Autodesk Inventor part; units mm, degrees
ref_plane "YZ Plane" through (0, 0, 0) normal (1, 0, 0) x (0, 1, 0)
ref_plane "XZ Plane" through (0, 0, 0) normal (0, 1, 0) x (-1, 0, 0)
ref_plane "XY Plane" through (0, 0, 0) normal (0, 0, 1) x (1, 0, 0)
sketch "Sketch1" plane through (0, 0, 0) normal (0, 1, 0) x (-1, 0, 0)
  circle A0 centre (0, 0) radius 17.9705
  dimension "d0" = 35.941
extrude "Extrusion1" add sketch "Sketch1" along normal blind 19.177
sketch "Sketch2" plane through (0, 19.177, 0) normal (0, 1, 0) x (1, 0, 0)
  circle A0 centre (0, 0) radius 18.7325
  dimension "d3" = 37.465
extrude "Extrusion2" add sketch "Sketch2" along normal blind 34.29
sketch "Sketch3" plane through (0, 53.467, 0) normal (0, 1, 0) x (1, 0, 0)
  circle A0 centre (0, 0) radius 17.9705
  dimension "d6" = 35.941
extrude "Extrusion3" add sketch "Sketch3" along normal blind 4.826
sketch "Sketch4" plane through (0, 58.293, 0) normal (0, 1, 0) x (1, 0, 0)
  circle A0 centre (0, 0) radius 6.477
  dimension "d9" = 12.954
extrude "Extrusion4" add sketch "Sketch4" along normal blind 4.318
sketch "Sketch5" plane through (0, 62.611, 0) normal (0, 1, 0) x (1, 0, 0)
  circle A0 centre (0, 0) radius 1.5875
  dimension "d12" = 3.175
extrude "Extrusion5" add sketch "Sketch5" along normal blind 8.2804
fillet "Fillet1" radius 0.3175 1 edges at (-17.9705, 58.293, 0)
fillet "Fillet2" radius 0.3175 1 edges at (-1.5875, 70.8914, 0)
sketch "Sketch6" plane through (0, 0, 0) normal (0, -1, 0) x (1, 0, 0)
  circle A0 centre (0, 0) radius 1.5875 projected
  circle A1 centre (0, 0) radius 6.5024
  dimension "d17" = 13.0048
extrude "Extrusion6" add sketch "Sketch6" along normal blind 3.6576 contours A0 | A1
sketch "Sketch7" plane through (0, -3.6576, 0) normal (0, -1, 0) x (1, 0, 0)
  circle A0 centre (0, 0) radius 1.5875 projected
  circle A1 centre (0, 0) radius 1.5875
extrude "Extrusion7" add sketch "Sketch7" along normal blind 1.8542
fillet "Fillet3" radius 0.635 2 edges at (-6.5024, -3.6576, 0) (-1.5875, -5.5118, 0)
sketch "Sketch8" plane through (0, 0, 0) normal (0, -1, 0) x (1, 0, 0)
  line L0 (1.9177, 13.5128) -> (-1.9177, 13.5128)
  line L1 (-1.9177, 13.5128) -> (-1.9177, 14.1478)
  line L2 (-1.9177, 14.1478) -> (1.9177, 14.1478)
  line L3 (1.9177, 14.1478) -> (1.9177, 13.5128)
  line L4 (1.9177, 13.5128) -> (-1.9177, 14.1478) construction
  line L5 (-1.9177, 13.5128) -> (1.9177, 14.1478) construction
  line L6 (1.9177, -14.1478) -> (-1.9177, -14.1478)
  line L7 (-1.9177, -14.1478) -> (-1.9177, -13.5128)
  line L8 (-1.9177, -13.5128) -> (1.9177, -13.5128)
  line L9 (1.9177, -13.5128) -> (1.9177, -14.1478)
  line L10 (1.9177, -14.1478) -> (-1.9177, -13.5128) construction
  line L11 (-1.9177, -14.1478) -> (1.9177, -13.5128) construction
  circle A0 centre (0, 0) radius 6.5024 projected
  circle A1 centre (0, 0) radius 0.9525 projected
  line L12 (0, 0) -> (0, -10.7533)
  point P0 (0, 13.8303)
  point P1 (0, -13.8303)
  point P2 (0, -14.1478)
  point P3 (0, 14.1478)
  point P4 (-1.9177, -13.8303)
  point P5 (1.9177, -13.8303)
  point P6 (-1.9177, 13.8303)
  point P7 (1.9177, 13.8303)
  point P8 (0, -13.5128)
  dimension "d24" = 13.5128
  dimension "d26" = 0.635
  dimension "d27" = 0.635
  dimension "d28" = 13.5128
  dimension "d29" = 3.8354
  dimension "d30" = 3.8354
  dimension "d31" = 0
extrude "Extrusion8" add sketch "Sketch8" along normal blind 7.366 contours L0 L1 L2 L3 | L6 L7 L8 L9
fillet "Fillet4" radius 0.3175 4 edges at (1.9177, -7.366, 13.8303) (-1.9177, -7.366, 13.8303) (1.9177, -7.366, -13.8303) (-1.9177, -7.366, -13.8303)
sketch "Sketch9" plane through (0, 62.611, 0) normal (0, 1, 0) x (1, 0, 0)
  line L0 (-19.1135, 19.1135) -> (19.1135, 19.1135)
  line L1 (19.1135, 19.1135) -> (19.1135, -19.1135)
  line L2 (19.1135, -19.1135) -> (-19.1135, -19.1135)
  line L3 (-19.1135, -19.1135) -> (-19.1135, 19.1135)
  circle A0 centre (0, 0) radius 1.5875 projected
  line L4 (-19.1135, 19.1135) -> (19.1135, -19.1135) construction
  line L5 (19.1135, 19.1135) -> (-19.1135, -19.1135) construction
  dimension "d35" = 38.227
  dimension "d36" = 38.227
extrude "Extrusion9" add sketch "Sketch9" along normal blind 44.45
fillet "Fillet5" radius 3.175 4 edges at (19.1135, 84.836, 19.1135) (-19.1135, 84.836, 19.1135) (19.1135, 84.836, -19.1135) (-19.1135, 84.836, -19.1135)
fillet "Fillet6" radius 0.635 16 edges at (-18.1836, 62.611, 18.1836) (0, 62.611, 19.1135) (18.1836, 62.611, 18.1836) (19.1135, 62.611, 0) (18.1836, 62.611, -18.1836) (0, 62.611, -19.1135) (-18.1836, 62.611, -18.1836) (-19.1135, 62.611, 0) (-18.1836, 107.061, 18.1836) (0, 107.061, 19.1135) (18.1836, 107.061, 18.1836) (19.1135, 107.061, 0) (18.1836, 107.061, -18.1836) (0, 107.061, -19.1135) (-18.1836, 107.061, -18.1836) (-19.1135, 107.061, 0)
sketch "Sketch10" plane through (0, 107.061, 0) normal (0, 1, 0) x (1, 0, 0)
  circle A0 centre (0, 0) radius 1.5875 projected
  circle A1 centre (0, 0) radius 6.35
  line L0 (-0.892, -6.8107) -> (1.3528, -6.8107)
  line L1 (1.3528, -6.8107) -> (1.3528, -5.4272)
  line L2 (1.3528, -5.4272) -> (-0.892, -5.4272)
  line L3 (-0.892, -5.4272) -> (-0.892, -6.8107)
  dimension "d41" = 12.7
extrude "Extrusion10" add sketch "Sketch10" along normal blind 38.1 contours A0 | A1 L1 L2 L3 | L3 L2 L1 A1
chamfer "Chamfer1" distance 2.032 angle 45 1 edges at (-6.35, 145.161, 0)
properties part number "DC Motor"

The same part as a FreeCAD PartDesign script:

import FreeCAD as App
import Part
import Sketcher
from FreeCAD import Vector
Q = App.Units.Quantity


def edges_at(feature, points):
    """Names of the edges that pass closest to the given points."""
    edges = feature.Shape.Edges
    near = lambda p: min(range(len(edges)), key=lambda i: edges[i].distToShape(Part.Vertex(*p))[0])
    return sorted({f"Edge{near(p) + 1}" for p in points})

doc = App.newDocument("Part")
params = doc.addObject("Spreadsheet::Sheet", "Params")
for row, (alias, value) in enumerate([
    ("sketch1_diameter", "1.415 in"),
    ("pad1_length", "0.755 in"),
    ("sketch2_diameter", "1.475 in"),
    ("pad2_length", "1.35 in"),
    ("sketch3_diameter", "1.415 in"),
    ("pad3_length", "0.19 in"),
    ("sketch4_diameter", "0.51 in"),
    ("pad4_length", "0.17 in"),
    ("sketch5_diameter", "0.125 in"),
    ("pad5_length", "0.326 in"),
    ("fillet_radius", "0.0125 in"),
    ("fillet2_radius", "0.0125 in"),
    ("sketch6_diameter", "0.512 in"),
    ("pad6_length", "0.144 in"),
    ("sketch7_diameter", "0.125 in"),
    ("pad7_length", "0.073 in"),
    ("fillet3_radius", "0.025 in"),
    ("sketch8_width", "0.151 in"),
    ("sketch8_height", "0.025 in"),
    ("pad8_length", "0.29 in"),
    ("fillet4_radius", "0.0125 in"),
    ("sketch9_width", "1.505 in"),
    ("sketch9_diameter", "0.125 in"),
    ("pad9_length", "1.75 in"),
    ("fillet5_radius", "0.125 in"),
    ("fillet6_radius", "0.025 in"),
    ("sketch10_diameter", "0.5 in"),
    ("pad10_length", "1.5 in"),
    ("chamfer_size", "0.08 in"),
], start=1):
    params.set(f"A{row}", alias)
    params.set(f"B{row}", "=" + value)
    params.setAlias(f"B{row}", alias)

body = doc.addObject("PartDesign::Body", "Body")

# Sketch on XZ plane
sketch1 = doc.addObject("Sketcher::SketchObject", "Sketch")
body.addObject(sketch1)
sketch1.AttachmentSupport = (doc.XZ_Plane, [""])
sketch1.MapMode = "FlatFace"
sketch1.addGeometry(Part.Circle(Vector(0, 0, 0), Vector(0, 0, 1), 17.9705), False)
sketch1.addConstraint(Sketcher.Constraint("Coincident", 0, 3, -1, 1))
sketch1.addConstraint(Sketcher.Constraint("Diameter", 0, Q("1.415 in")))
sketch1.setExpression("Constraints[1]", "Params.sketch1_diameter")
pad1 = doc.addObject("PartDesign::Pad", "Pad")
body.addObject(pad1)
pad1.Profile = sketch1
pad1.setExpression("Length", "Params.pad1_length")
pad1.Reversed = True

# Sketch on XZ plane
sketch2 = doc.addObject("Sketcher::SketchObject", "Sketch001")
body.addObject(sketch2)
sketch2.AttachmentSupport = (doc.XZ_Plane, [""])
sketch2.MapMode = "FlatFace"
sketch2.AttachmentOffset = App.Placement(Vector(0, 0, -0.755 * 25.4), App.Rotation())
sketch2.addGeometry(Part.Circle(Vector(0, 0, 0), Vector(0, 0, 1), 18.7325), False)
sketch2.addConstraint(Sketcher.Constraint("Coincident", 0, 3, -1, 1))
sketch2.addConstraint(Sketcher.Constraint("Diameter", 0, Q("1.475 in")))
sketch2.setExpression("Constraints[1]", "Params.sketch2_diameter")
pad2 = doc.addObject("PartDesign::Pad", "Pad001")
body.addObject(pad2)
pad2.Profile = sketch2
pad2.setExpression("Length", "Params.pad2_length")
pad2.Reversed = True

# Sketch on XZ plane
sketch3 = doc.addObject("Sketcher::SketchObject", "Sketch002")
body.addObject(sketch3)
sketch3.AttachmentSupport = (doc.XZ_Plane, [""])
sketch3.MapMode = "FlatFace"
sketch3.AttachmentOffset = App.Placement(Vector(0, 0, -2.105 * 25.4), App.Rotation())
sketch3.addGeometry(Part.Circle(Vector(0, 0, 0), Vector(0, 0, 1), 17.9705), False)
sketch3.addConstraint(Sketcher.Constraint("Coincident", 0, 3, -1, 1))
sketch3.addConstraint(Sketcher.Constraint("Diameter", 0, Q("1.415 in")))
sketch3.setExpression("Constraints[1]", "Params.sketch3_diameter")
pad3 = doc.addObject("PartDesign::Pad", "Pad002")
body.addObject(pad3)
pad3.Profile = sketch3
pad3.setExpression("Length", "Params.pad3_length")
pad3.Reversed = True

# Sketch on XZ plane
sketch4 = doc.addObject("Sketcher::SketchObject", "Sketch003")
body.addObject(sketch4)
sketch4.AttachmentSupport = (doc.XZ_Plane, [""])
sketch4.MapMode = "FlatFace"
sketch4.AttachmentOffset = App.Placement(Vector(0, 0, -2.295 * 25.4), App.Rotation())
sketch4.addGeometry(Part.Circle(Vector(0, 0, 0), Vector(0, 0, 1), 6.477), False)
sketch4.addConstraint(Sketcher.Constraint("Coincident", 0, 3, -1, 1))
sketch4.addConstraint(Sketcher.Constraint("Diameter", 0, Q("0.51 in")))
sketch4.setExpression("Constraints[1]", "Params.sketch4_diameter")
pad4 = doc.addObject("PartDesign::Pad", "Pad003")
body.addObject(pad4)
pad4.Profile = sketch4
pad4.setExpression("Length", "Params.pad4_length")
pad4.Reversed = True

# Sketch on XZ plane
sketch5 = doc.addObject("Sketcher::SketchObject", "Sketch004")
body.addObject(sketch5)
sketch5.AttachmentSupport = (doc.XZ_Plane, [""])
sketch5.MapMode = "FlatFace"
sketch5.AttachmentOffset = App.Placement(Vector(0, 0, -2.465 * 25.4), App.Rotation())
sketch5.addGeometry(Part.Circle(Vector(0, 0, 0), Vector(0, 0, 1), 1.5875), False)
sketch5.addConstraint(Sketcher.Constraint("Coincident", 0, 3, -1, 1))
sketch5.addConstraint(Sketcher.Constraint("Diameter", 0, Q("0.125 in")))
sketch5.setExpression("Constraints[1]", "Params.sketch5_diameter")
pad5 = doc.addObject("PartDesign::Pad", "Pad004")
body.addObject(pad5)
pad5.Profile = sketch5
pad5.setExpression("Length", "Params.pad5_length")
pad5.Reversed = True
doc.recompute()

fillet = doc.addObject("PartDesign::Fillet", "Fillet")
body.addObject(fillet)
fillet.Base = (pad5, edges_at(pad5, [(-17.971, 58.293, 0)]))
fillet.setExpression("Radius", "Params.fillet_radius")
doc.recompute()

fillet2 = doc.addObject("PartDesign::Fillet", "Fillet001")
body.addObject(fillet2)
fillet2.Base = (fillet, edges_at(fillet, [(-1.587, 70.891, 0)]))
fillet2.setExpression("Radius", "Params.fillet2_radius")

# Sketch on XZ plane
sketch6 = doc.addObject("Sketcher::SketchObject", "Sketch005")
body.addObject(sketch6)
sketch6.AttachmentSupport = (doc.XZ_Plane, [""])
sketch6.MapMode = "FlatFace"
sketch6.addGeometry(Part.Circle(Vector(0, 0, 0), Vector(0, 0, 1), 6.5024), False)
sketch6.addConstraint(Sketcher.Constraint("Coincident", 0, 3, -1, 1))
sketch6.addConstraint(Sketcher.Constraint("Diameter", 0, Q("0.512 in")))
sketch6.setExpression("Constraints[1]", "Params.sketch6_diameter")
pad6 = doc.addObject("PartDesign::Pad", "Pad005")
body.addObject(pad6)
pad6.Profile = sketch6
pad6.setExpression("Length", "Params.pad6_length")

# Sketch on XZ plane
sketch7 = doc.addObject("Sketcher::SketchObject", "Sketch006")
body.addObject(sketch7)
sketch7.AttachmentSupport = (doc.XZ_Plane, [""])
sketch7.MapMode = "FlatFace"
sketch7.AttachmentOffset = App.Placement(Vector(0, 0, 0.144 * 25.4), App.Rotation())
sketch7.addGeometry(Part.Circle(Vector(0, 0, 0), Vector(0, 0, 1), 1.5875), False)
sketch7.addConstraint(Sketcher.Constraint("Coincident", 0, 3, -1, 1))
sketch7.addConstraint(Sketcher.Constraint("Diameter", 0, Q("0.125 in")))
sketch7.setExpression("Constraints[1]", "Params.sketch7_diameter")
pad7 = doc.addObject("PartDesign::Pad", "Pad006")
body.addObject(pad7)
pad7.Profile = sketch7
pad7.setExpression("Length", "Params.pad7_length")
doc.recompute()

fillet3 = doc.addObject("PartDesign::Fillet", "Fillet002")
body.addObject(fillet3)
fillet3.Base = (pad7, edges_at(pad7, [(-6.502, -3.658, 0), (-1.587, -5.512, 0)]))
fillet3.setExpression("Radius", "Params.fillet3_radius")

# Sketch on XZ plane
sketch8 = doc.addObject("Sketcher::SketchObject", "Sketch007")
body.addObject(sketch8)
sketch8.AttachmentSupport = (doc.XZ_Plane, [""])
sketch8.MapMode = "FlatFace"
sketch8.addGeometry(Part.LineSegment(Vector(-1.9177, 13.5128, 0), Vector(1.9177, 13.5128, 0)), False)
sketch8.addGeometry(Part.LineSegment(Vector(1.9177, 13.5128, 0), Vector(1.9177, 14.1478, 0)), False)
sketch8.addGeometry(Part.LineSegment(Vector(1.9177, 14.1478, 0), Vector(-1.9177, 14.1478, 0)), False)
sketch8.addGeometry(Part.LineSegment(Vector(-1.9177, 14.1478, 0), Vector(-1.9177, 13.5128, 0)), False)
sketch8.addGeometry(Part.LineSegment(Vector(-1.9177, -14.1478, 0), Vector(1.9177, -14.1478, 0)), False)
sketch8.addGeometry(Part.LineSegment(Vector(1.9177, -14.1478, 0), Vector(1.9177, -13.5128, 0)), False)
sketch8.addGeometry(Part.LineSegment(Vector(1.9177, -13.5128, 0), Vector(-1.9177, -13.5128, 0)), False)
sketch8.addGeometry(Part.LineSegment(Vector(-1.9177, -13.5128, 0), Vector(-1.9177, -14.1478, 0)), False)
sketch8.addConstraint(Sketcher.Constraint("Coincident", 0, 2, 1, 1))
sketch8.addConstraint(Sketcher.Constraint("Coincident", 1, 2, 2, 1))
sketch8.addConstraint(Sketcher.Constraint("Coincident", 2, 2, 3, 1))
sketch8.addConstraint(Sketcher.Constraint("Coincident", 3, 2, 0, 1))
sketch8.addConstraint(Sketcher.Constraint("Coincident", 4, 2, 5, 1))
sketch8.addConstraint(Sketcher.Constraint("Coincident", 5, 2, 6, 1))
sketch8.addConstraint(Sketcher.Constraint("Coincident", 6, 2, 7, 1))
sketch8.addConstraint(Sketcher.Constraint("Coincident", 7, 2, 4, 1))
sketch8.addConstraint(Sketcher.Constraint("Horizontal", 0))
sketch8.addConstraint(Sketcher.Constraint("Vertical", 1))
sketch8.addConstraint(Sketcher.Constraint("Horizontal", 2))
sketch8.addConstraint(Sketcher.Constraint("Vertical", 3))
sketch8.addConstraint(Sketcher.Constraint("Horizontal", 4))
sketch8.addConstraint(Sketcher.Constraint("Vertical", 5))
sketch8.addConstraint(Sketcher.Constraint("Horizontal", 6))
sketch8.addConstraint(Sketcher.Constraint("Vertical", 7))
sketch8.addConstraint(Sketcher.Constraint("Symmetric", 2, 2, 4, 2, -1, 1))
sketch8.addConstraint(Sketcher.Constraint("Symmetric", 0, 2, 6, 2, -1, 1))
sketch8.addConstraint(Sketcher.Constraint("Vertical", 1, 2, 4, 2))
sketch8.addConstraint(Sketcher.Constraint("DistanceX", 0, 1, 0, 2, Q("0.151 in")))
sketch8.addConstraint(Sketcher.Constraint("DistanceY", 1, 1, 1, 2, Q("0.025 in")))
sketch8.addConstraint(Sketcher.Constraint("DistanceY", -1, 1, 0, 2, Q("0.532 in")))
sketch8.setExpression("Constraints[19]", "Params.sketch8_width")
sketch8.setExpression("Constraints[20]", "Params.sketch8_height")
pad8 = doc.addObject("PartDesign::Pad", "Pad007")
body.addObject(pad8)
pad8.Profile = sketch8
pad8.setExpression("Length", "Params.pad8_length")
doc.recompute()

fillet4 = doc.addObject("PartDesign::Fillet", "Fillet003")
body.addObject(fillet4)
fillet4.Base = (pad8, edges_at(pad8, [
    (1.918, -7.366, 13.83),
    (-1.918, -7.366, 13.83),
    (1.918, -7.366, -13.83),
    (-1.918, -7.366, -13.83),
]))
fillet4.setExpression("Radius", "Params.fillet4_radius")

# Sketch on XZ plane
sketch9 = doc.addObject("Sketcher::SketchObject", "Sketch008")
body.addObject(sketch9)
sketch9.AttachmentSupport = (doc.XZ_Plane, [""])
sketch9.MapMode = "FlatFace"
sketch9.AttachmentOffset = App.Placement(Vector(0, 0, -2.465 * 25.4), App.Rotation())
sketch9.addGeometry(Part.LineSegment(Vector(19.1135, -19.1135, 0), Vector(-19.1135, -19.1135, 0)), False)
sketch9.addGeometry(Part.LineSegment(Vector(-19.1135, -19.1135, 0), Vector(-19.1135, 19.1135, 0)), False)
sketch9.addGeometry(Part.LineSegment(Vector(-19.1135, 19.1135, 0), Vector(19.1135, 19.1135, 0)), False)
sketch9.addGeometry(Part.LineSegment(Vector(19.1135, 19.1135, 0), Vector(19.1135, -19.1135, 0)), False)
sketch9.addGeometry(Part.Circle(Vector(0, 0, 0), Vector(0, 0, 1), 1.5875), False)
sketch9.addConstraint(Sketcher.Constraint("Coincident", 0, 2, 1, 1))
sketch9.addConstraint(Sketcher.Constraint("Coincident", 1, 2, 2, 1))
sketch9.addConstraint(Sketcher.Constraint("Coincident", 2, 2, 3, 1))
sketch9.addConstraint(Sketcher.Constraint("Coincident", 3, 2, 0, 1))
sketch9.addConstraint(Sketcher.Constraint("Horizontal", 0))
sketch9.addConstraint(Sketcher.Constraint("Vertical", 1))
sketch9.addConstraint(Sketcher.Constraint("Horizontal", 2))
sketch9.addConstraint(Sketcher.Constraint("Vertical", 3))
sketch9.addConstraint(Sketcher.Constraint("Coincident", 4, 3, -1, 1))
sketch9.addConstraint(Sketcher.Constraint("Symmetric", 0, 2, 2, 2, -1, 1))
sketch9.addConstraint(Sketcher.Constraint("Equal", 2, 1))
sketch9.addConstraint(Sketcher.Constraint("DistanceX", 0, 2, 0, 1, Q("1.505 in")))
sketch9.addConstraint(Sketcher.Constraint("Diameter", 4, Q("0.125 in")))
sketch9.setExpression("Constraints[11]", "Params.sketch9_width")
sketch9.setExpression("Constraints[12]", "Params.sketch9_diameter")
pad9 = doc.addObject("PartDesign::Pad", "Pad008")
body.addObject(pad9)
pad9.Profile = sketch9
pad9.setExpression("Length", "Params.pad9_length")
pad9.Reversed = True
doc.recompute()

fillet5 = doc.addObject("PartDesign::Fillet", "Fillet004")
body.addObject(fillet5)
fillet5.Base = (pad9, edges_at(pad9, [
    (19.113, 84.836, 19.113),
    (-19.113, 84.836, 19.113),
    (19.113, 84.836, -19.113),
    (-19.113, 84.836, -19.113),
]))
fillet5.setExpression("Radius", "Params.fillet5_radius")
doc.recompute()

fillet6 = doc.addObject("PartDesign::Fillet", "Fillet005")
body.addObject(fillet6)
fillet6.Base = (fillet5, edges_at(fillet5, [
    (-18.184, 62.611, 18.184),
    (0, 62.611, 19.113),
    (18.184, 62.611, 18.184),
    (19.113, 62.611, 0),
    (18.184, 62.611, -18.184),
    (0, 62.611, -19.113),
    (-18.184, 62.611, -18.184),
    (-19.113, 62.611, 0),
    (-18.184, 107.061, 18.184),
    (0, 107.061, 19.113),
    (18.184, 107.061, 18.184),
    (19.113, 107.061, 0),
    (18.184, 107.061, -18.184),
    (0, 107.061, -19.113),
    (-18.184, 107.061, -18.184),
    (-19.113, 107.061, 0),
]))
fillet6.setExpression("Radius", "Params.fillet6_radius")

# Sketch on XZ plane
sketch10 = doc.addObject("Sketcher::SketchObject", "Sketch009")
body.addObject(sketch10)
sketch10.AttachmentSupport = (doc.XZ_Plane, [""])
sketch10.MapMode = "FlatFace"
sketch10.AttachmentOffset = App.Placement(Vector(0, 0, -4.215 * 25.4), App.Rotation())
sketch10.addGeometry(Part.Circle(Vector(0, 0, 0), Vector(0, 0, 1), 6.35), False)
sketch10.addConstraint(Sketcher.Constraint("Coincident", 0, 3, -1, 1))
sketch10.addConstraint(Sketcher.Constraint("Diameter", 0, Q("0.5 in")))
sketch10.setExpression("Constraints[1]", "Params.sketch10_diameter")
pad10 = doc.addObject("PartDesign::Pad", "Pad009")
body.addObject(pad10)
pad10.Profile = sketch10
pad10.setExpression("Length", "Params.pad10_length")
pad10.Reversed = True
doc.recompute()

chamfer = doc.addObject("PartDesign::Chamfer", "Chamfer")
body.addObject(chamfer)
chamfer.Base = (pad10, edges_at(pad10, [(-6.35, 145.161, 0)]))
chamfer.setExpression("Size", "Params.chamfer_size")

doc.recompute()
